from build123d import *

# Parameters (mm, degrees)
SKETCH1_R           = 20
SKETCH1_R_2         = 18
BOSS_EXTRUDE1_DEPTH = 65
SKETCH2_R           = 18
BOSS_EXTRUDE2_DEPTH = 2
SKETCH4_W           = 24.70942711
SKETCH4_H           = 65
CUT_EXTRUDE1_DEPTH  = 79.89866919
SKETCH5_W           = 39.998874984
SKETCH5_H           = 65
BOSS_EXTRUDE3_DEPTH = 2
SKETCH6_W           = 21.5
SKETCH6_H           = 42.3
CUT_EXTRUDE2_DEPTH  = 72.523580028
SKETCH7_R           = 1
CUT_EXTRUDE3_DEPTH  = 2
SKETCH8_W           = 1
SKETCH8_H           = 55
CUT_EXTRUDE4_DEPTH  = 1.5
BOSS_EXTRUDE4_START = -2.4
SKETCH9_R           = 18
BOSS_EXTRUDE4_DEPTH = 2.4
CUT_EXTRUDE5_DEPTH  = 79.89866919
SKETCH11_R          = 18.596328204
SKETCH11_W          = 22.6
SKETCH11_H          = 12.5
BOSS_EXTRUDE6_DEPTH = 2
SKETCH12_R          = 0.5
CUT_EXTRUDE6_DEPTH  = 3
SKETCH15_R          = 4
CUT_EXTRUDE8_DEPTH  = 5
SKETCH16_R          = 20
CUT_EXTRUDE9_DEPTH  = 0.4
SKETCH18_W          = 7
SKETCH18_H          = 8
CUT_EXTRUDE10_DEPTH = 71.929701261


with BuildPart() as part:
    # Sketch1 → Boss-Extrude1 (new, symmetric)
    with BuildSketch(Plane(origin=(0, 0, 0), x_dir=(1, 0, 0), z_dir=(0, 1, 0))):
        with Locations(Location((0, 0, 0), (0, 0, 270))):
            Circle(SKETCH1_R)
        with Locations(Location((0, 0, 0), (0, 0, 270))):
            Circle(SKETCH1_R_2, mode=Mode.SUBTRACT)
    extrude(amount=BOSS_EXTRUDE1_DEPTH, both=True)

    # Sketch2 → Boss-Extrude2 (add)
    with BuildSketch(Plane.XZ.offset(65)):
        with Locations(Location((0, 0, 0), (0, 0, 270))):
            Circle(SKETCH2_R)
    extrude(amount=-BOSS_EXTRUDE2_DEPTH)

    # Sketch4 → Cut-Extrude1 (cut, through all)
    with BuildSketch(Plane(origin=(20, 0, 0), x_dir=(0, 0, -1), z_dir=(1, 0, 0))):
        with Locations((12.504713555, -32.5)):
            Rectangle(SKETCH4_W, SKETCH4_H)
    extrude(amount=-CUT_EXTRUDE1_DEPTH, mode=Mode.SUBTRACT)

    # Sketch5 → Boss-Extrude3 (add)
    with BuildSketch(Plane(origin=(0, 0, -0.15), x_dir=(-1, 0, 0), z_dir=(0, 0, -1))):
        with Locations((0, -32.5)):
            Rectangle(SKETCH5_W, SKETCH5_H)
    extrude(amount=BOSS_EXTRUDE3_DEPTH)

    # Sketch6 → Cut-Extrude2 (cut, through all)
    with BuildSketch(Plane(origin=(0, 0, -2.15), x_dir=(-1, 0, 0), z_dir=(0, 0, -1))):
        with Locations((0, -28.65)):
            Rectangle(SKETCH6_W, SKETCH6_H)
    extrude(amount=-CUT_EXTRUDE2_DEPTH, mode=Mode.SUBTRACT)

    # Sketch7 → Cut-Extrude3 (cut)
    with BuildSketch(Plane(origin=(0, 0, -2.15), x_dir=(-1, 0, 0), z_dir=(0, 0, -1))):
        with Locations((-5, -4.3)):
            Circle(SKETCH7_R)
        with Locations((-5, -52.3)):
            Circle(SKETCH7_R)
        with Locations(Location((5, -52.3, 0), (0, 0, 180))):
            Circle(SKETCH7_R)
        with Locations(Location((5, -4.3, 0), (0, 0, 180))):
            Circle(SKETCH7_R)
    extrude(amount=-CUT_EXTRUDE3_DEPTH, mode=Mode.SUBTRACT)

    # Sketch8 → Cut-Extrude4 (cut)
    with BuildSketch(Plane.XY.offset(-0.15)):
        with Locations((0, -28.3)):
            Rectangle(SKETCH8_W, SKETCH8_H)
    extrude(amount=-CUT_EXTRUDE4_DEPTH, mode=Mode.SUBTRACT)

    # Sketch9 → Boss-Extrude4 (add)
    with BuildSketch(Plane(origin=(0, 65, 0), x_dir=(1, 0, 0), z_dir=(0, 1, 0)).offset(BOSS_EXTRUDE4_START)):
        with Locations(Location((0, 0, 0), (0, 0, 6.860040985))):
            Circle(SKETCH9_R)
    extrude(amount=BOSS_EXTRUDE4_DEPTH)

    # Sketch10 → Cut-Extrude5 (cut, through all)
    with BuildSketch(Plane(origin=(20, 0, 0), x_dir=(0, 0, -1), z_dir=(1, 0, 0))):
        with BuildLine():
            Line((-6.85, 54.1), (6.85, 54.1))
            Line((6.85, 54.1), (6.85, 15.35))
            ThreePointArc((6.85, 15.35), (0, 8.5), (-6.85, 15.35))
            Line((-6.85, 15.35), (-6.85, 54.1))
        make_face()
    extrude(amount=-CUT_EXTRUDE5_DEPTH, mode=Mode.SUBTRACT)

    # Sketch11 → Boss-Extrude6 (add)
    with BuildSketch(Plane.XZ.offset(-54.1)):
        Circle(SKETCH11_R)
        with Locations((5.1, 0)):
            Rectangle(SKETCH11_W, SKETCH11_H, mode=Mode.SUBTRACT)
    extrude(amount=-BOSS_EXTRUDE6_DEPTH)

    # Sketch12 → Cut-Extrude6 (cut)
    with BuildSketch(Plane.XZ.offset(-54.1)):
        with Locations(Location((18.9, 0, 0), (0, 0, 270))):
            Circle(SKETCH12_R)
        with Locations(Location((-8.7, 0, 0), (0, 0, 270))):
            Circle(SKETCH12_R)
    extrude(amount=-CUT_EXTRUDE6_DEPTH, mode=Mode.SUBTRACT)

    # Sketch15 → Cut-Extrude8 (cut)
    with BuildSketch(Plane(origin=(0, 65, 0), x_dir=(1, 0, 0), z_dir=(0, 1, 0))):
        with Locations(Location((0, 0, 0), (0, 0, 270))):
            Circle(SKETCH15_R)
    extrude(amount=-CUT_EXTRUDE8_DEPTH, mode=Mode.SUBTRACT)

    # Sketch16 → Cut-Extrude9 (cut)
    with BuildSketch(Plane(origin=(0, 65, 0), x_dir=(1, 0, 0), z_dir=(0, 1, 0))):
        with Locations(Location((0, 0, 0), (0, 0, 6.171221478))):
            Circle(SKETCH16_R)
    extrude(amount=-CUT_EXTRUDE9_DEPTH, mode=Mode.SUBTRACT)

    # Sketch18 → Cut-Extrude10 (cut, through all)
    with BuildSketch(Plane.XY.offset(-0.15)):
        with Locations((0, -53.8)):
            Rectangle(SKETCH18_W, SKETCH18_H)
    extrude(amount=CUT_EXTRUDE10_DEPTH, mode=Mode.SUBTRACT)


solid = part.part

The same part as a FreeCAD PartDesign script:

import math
import FreeCAD as App
import Part
import Sketcher
from FreeCAD import Vector
Q = App.Units.Quantity

doc = App.newDocument("Part")
body = doc.addObject("PartDesign::Body", "Body")

# Sketch on XZ plane
sketch1 = body.newObject("Sketcher::SketchObject", "Sketch")
sketch1.AttachmentSupport = (doc.getObject("XZ_Plane"), [""])
sketch1.MapMode = "FlatFace"
sketch1.addGeometry([
    Part.Circle(Vector(0, 0, 0), Vector(0, 0, 1), 20),
    Part.Circle(Vector(0, 0, 0), Vector(0, 0, 1), 18),
], False)
sketch1.addConstraint([
    Sketcher.Constraint("Coincident", 0, 3, -1, 1),
    Sketcher.Constraint("Coincident", 1, 3, -1, 1),
    Sketcher.Constraint("Diameter", 0, Q("40 mm")),
    Sketcher.Constraint("Diameter", 1, Q("36 mm")),
])
pad1 = body.newObject("PartDesign::Pad", "Pad")
pad1.Profile = sketch1
pad1.Length = 130
pad1.Midplane = True

# Sketch on XZ plane
sketch2 = body.newObject("Sketcher::SketchObject", "Sketch001")
sketch2.AttachmentSupport = (doc.getObject("XZ_Plane"), [""])
sketch2.MapMode = "FlatFace"
sketch2.AttachmentOffset = App.Placement(Vector(0, 0, 65), App.Rotation())
sketch2.addGeometry(Part.Circle(Vector(0, 0, 0), Vector(0, 0, 1), 18), False)
sketch2.addConstraint([
    Sketcher.Constraint("Coincident", 0, 3, -1, 1),
    Sketcher.Constraint("Diameter", 0, Q("36 mm")),
])
pad2 = body.newObject("PartDesign::Pad", "Pad001")
pad2.Profile = sketch2
pad2.Length = 2
pad2.Reversed = True

# Sketch on YZ plane
sketch3 = body.newObject("Sketcher::SketchObject", "Sketch002")
sketch3.AttachmentSupport = (doc.getObject("YZ_Plane"), [""])
sketch3.MapMode = "FlatFace"
sketch3.AttachmentOffset = App.Placement(Vector(0, 0, 20), App.Rotation())
sketch3.addGeometry([
    Part.LineSegment(Vector(0, -0.15, 0), Vector(-65, -0.15, 0)),
    Part.LineSegment(Vector(-65, -0.15, 0), Vector(-65, -24.859427, 0)),
    Part.LineSegment(Vector(-65, -24.859427, 0), Vector(0, -24.859427, 0)),
    Part.LineSegment(Vector(0, -24.859427, 0), Vector(0, -0.15, 0)),
], False)
sketch3.addConstraint([
    Sketcher.Constraint("Coincident", 0, 2, 1, 1),
    Sketcher.Constraint("Coincident", 1, 2, 2, 1),
    Sketcher.Constraint("Coincident", 2, 2, 3, 1),
    Sketcher.Constraint("Coincident", 3, 2, 0, 1),
    Sketcher.Constraint("Horizontal", 0),
    Sketcher.Constraint("Vertical", 1),
    Sketcher.Constraint("Horizontal", 2),
    Sketcher.Constraint("Vertical", 3),
    Sketcher.Constraint("PointOnObject", 2, 2, -2),
    Sketcher.Constraint("DistanceX", 0, 2, 0, 1, Q("65 mm")),
    Sketcher.Constraint("DistanceY", 0, 2, -1, 1, Q("0.15 mm")),
    Sketcher.Constraint("DistanceY", 1, 2, 1, 1, Q("24.709427 mm")),
])
pocket1 = body.newObject("PartDesign::Pocket", "Pocket")
pocket1.Profile = sketch3
pocket1.Type = "ThroughAll"

# Sketch on XY plane
sketch4 = body.newObject("Sketcher::SketchObject", "Sketch003")
sketch4.AttachmentSupport = (doc.getObject("XY_Plane"), [""])
sketch4.MapMode = "FlatFace"
sketch4.AttachmentOffset = App.Placement(Vector(0, 0, -0.15), App.Rotation())
sketch4.addGeometry([
    Part.LineSegment(Vector(19.999437, 0, 0), Vector(19.999437, -65, 0)),
    Part.LineSegment(Vector(19.999437, -65, 0), Vector(-19.999437, -65, 0)),
    Part.LineSegment(Vector(-19.999437, -65, 0), Vector(-19.999437, 0, 0)),
    Part.LineSegment(Vector(-19.999437, 0, 0), Vector(19.999437, 0, 0)),
], False)
sketch4.addConstraint([
    Sketcher.Constraint("Coincident", 0, 2, 1, 1),
    Sketcher.Constraint("Coincident", 1, 2, 2, 1),
    Sketcher.Constraint("Coincident", 2, 2, 3, 1),
    Sketcher.Constraint("Coincident", 3, 2, 0, 1),
    Sketcher.Constraint("Vertical", 0),
    Sketcher.Constraint("Horizontal", 1),
    Sketcher.Constraint("Vertical", 2),
    Sketcher.Constraint("Horizontal", 3),
    Sketcher.Constraint("Symmetric", 2, 2, 3, 2, -1, 1),
    Sketcher.Constraint("DistanceY", 0, 2, 0, 1, Q("65 mm")),
    Sketcher.Constraint("DistanceX", 1, 2, 1, 1, Q("39.998875 mm")),
])
pad3 = body.newObject("PartDesign::Pad", "Pad002")
pad3.Profile = sketch4
pad3.Length = 2
pad3.Reversed = True

# Sketch on XY plane
sketch5 = body.newObject("Sketcher::SketchObject", "Sketch004")
sketch5.AttachmentSupport = (doc.getObject("XY_Plane"), [""])
sketch5.MapMode = "FlatFace"
sketch5.AttachmentOffset = App.Placement(Vector(0, 0, -2.15), App.Rotation())
sketch5.addGeometry([
    Part.LineSegment(Vector(10.75, -7.5, 0), Vector(10.75, -49.8, 0)),
    Part.LineSegment(Vector(10.75, -49.8, 0), Vector(-10.75, -49.8, 0)),
    Part.LineSegment(Vector(-10.75, -49.8, 0), Vector(-10.75, -7.5, 0)),
    Part.LineSegment(Vector(-10.75, -7.5, 0), Vector(10.75, -7.5, 0)),
], False)
sketch5.addConstraint([
    Sketcher.Constraint("Coincident", 0, 2, 1, 1),
    Sketcher.Constraint("Coincident", 1, 2, 2, 1),
    Sketcher.Constraint("Coincident", 2, 2, 3, 1),
    Sketcher.Constraint("Coincident", 3, 2, 0, 1),
    Sketcher.Constraint("Vertical", 0),
    Sketcher.Constraint("Horizontal", 1),
    Sketcher.Constraint("Vertical", 2),
    Sketcher.Constraint("Horizontal", 3),
    Sketcher.Constraint("DistanceX", 1, 2, 1, 1, Q("21.5 mm")),
    Sketcher.Constraint("DistanceY", 0, 2, 0, 1, Q("42.3 mm")),
    Sketcher.Constraint("DistanceY", 0, 2, -1, 1, Q("49.8 mm")),
    Sketcher.Constraint("DistanceX", -1, 1, 0, 2, Q("10.75 mm")),
])
pocket2 = body.newObject("PartDesign::Pocket", "Pocket001")
pocket2.Profile = sketch5
pocket2.Type = "ThroughAll"
pocket2.Reversed = True

# Sketch on XY plane
sketch6 = body.newObject("Sketcher::SketchObject", "Sketch005")
sketch6.AttachmentSupport = (doc.getObject("XY_Plane"), [""])
sketch6.MapMode = "FlatFace"
sketch6.AttachmentOffset = App.Placement(Vector(0, 0, -2.15), App.Rotation())
sketch6.addGeometry([
    Part.Circle(Vector(5, -4.3, 0), Vector(0, 0, 1), 1),
    Part.Circle(Vector(5, -52.3, 0), Vector(0, 0, 1), 1),
    Part.Circle(Vector(-5, -52.3, 0), Vector(0, 0, 1), 1),
    Part.Circle(Vector(-5, -4.3, 0), Vector(0, 0, 1), 1),
], False)
sketch6.addConstraint([
    Sketcher.Constraint("Equal", 0, 1),
    Sketcher.Constraint("Equal", 1, 2),
    Sketcher.Constraint("Equal", 2, 3),
    Sketcher.Constraint("Symmetric", 1, 3, 2, 3, -2),
    Sketcher.Constraint("Symmetric", 0, 3, 3, 3, -2),
    Sketcher.Constraint("Vertical", 0, 3, 1, 3),
    Sketcher.Constraint("Diameter", 0, Q("2 mm")),
    Sketcher.Constraint("DistanceX", -1, 1, 0, 3, Q("5 mm")),
    Sketcher.Constraint("DistanceY", 1, 3, 0, 3, Q("48 mm")),
    Sketcher.Constraint("DistanceY", 0, 3, -1, 1, Q("4.3 mm")),
])
pocket3 = body.newObject("PartDesign::Pocket", "Pocket002")
pocket3.Profile = sketch6
pocket3.Length = 2
pocket3.Reversed = True

# Sketch on XY plane
sketch7 = body.newObject("Sketcher::SketchObject", "Sketch006")
sketch7.AttachmentSupport = (doc.getObject("XY_Plane"), [""])
sketch7.MapMode = "FlatFace"
sketch7.AttachmentOffset = App.Placement(Vector(0, 0, -0.15), App.Rotation())
sketch7.addGeometry([
    Part.LineSegment(Vector(-0.5, -0.8, 0), Vector(-0.5, -55.8, 0)),
    Part.LineSegment(Vector(-0.5, -55.8, 0), Vector(0.5, -55.8, 0)),
    Part.LineSegment(Vector(0.5, -55.8, 0), Vector(0.5, -0.8, 0)),
    Part.LineSegment(Vector(0.5, -0.8, 0), Vector(-0.5, -0.8, 0)),
], False)
sketch7.addConstraint([
    Sketcher.Constraint("Coincident", 0, 2, 1, 1),
    Sketcher.Constraint("Coincident", 1, 2, 2, 1),
    Sketcher.Constraint("Coincident", 2, 2, 3, 1),
    Sketcher.Constraint("Coincident", 3, 2, 0, 1),
    Sketcher.Constraint("Vertical", 0),
    Sketcher.Constraint("Horizontal", 1),
    Sketcher.Constraint("Vertical", 2),
    Sketcher.Constraint("Horizontal", 3),
    Sketcher.Constraint("DistanceX", 1, 1, 1, 2, Q("1 mm")),
    Sketcher.Constraint("DistanceY", 0, 2, 0, 1, Q("55 mm")),
    Sketcher.Constraint("DistanceX", 0, 2, -1, 1, Q("0.5 mm")),
    Sketcher.Constraint("DistanceY", 0, 2, -1, 1, Q("55.8 mm")),
])
pocket4 = body.newObject("PartDesign::Pocket", "Pocket003")
pocket4.Profile = sketch7
pocket4.Length = 1.5

# Sketch on XZ plane
sketch8 = body.newObject("Sketcher::SketchObject", "Sketch007")
sketch8.AttachmentSupport = (doc.getObject("XZ_Plane"), [""])
sketch8.MapMode = "FlatFace"
sketch8.AttachmentOffset = App.Placement(Vector(0, 0, -62.6), App.Rotation())
sketch8.addGeometry(Part.Circle(Vector(0, 0, 0), Vector(0, 0, 1), 18), False)
sketch8.addConstraint([
    Sketcher.Constraint("Coincident", 0, 3, -1, 1),
    Sketcher.Constraint("Diameter", 0, Q("36 mm")),
])
pad4 = body.newObject("PartDesign::Pad", "Pad003")
pad4.Profile = sketch8
pad4.Length = 2.4
pad4.Reversed = True

# Sketch on YZ plane
sketch9 = body.newObject("Sketcher::SketchObject", "Sketch008")
sketch9.AttachmentSupport = (doc.getObject("YZ_Plane"), [""])
sketch9.MapMode = "FlatFace"
sketch9.AttachmentOffset = App.Placement(Vector(0, 0, 20), App.Rotation())
sketch9.addGeometry([
    Part.LineSegment(Vector(54.1, -6.85, 0), Vector(54.1, 6.85, 0)),
    Part.LineSegment(Vector(54.1, 6.85, 0), Vector(15.35, 6.85, 0)),
    Part.ArcOfCircle(Part.Circle(Vector(15.35, 0, 0), Vector(0, 0, 1), 6.85), math.radians(90), math.radians(270)),
    Part.LineSegment(Vector(15.35, -6.85, 0), Vector(54.1, -6.85, 0)),
], False)
sketch9.addConstraint([
    Sketcher.Constraint("Coincident", 0, 2, 1, 1),
    Sketcher.Constraint("Tangent", 1, 2, 2, 1),
    Sketcher.Constraint("Tangent", 2, 2, 3, 1),
    Sketcher.Constraint("Coincident", 3, 2, 0, 1),
    Sketcher.Constraint("Vertical", 0),
    Sketcher.Constraint("Horizontal", 1),
    Sketcher.Constraint("Horizontal", 3),
    Sketcher.Constraint("PointOnObject", 2, 3, -1),
    Sketcher.Constraint("Radius", 2, Q("6.85 mm")),
    Sketcher.Constraint("DistanceX", 1, 2, 1, 1, Q("38.75 mm")),
    Sketcher.Constraint("DistanceX", -1, 1, 0, 2, Q("54.1 mm")),
])
pocket5 = body.newObject("PartDesign::Pocket", "Pocket004")
pocket5.Profile = sketch9
pocket5.Type = "ThroughAll"

# Sketch on XZ plane
sketch10 = body.newObject("Sketcher::SketchObject", "Sketch009")
sketch10.AttachmentSupport = (doc.getObject("XZ_Plane"), [""])
sketch10.MapMode = "FlatFace"
sketch10.AttachmentOffset = App.Placement(Vector(0, 0, -54.1), App.Rotation())
sketch10.addGeometry([
    Part.Circle(Vector(0, 0, 0), Vector(0, 0, 1), 18.596328),  # 0
    Part.LineSegment(Vector(16.4, -6.25, 0), Vector(-6.2, -6.25, 0)),  # 1
    Part.LineSegment(Vector(-6.2, -6.25, 0), Vector(-6.2, 6.25, 0)),  # 2
    Part.LineSegment(Vector(-6.2, 6.25, 0), Vector(16.4, 6.25, 0)),  # 3
    Part.LineSegment(Vector(16.4, 6.25, 0), Vector(16.4, -6.25, 0)),  # 4
], False)
sketch10.addConstraint([
    Sketcher.Constraint("Coincident", 1, 2, 2, 1),
    Sketcher.Constraint("Coincident", 2, 2, 3, 1),
    Sketcher.Constraint("Coincident", 3, 2, 4, 1),
    Sketcher.Constraint("Coincident", 4, 2, 1, 1),
    Sketcher.Constraint("Horizontal", 1),
    Sketcher.Constraint("Vertical", 2),
    Sketcher.Constraint("Horizontal", 3),
    Sketcher.Constraint("Vertical", 4),
    Sketcher.Constraint("Coincident", 0, 3, -1, 1),
    Sketcher.Constraint("DistanceX", 1, 2, 1, 1, Q("22.6 mm")),
    Sketcher.Constraint("DistanceY", 2, 1, 2, 2, Q("12.5 mm")),
    Sketcher.Constraint("DistanceX", 1, 2, -1, 1, Q("6.2 mm")),
    Sketcher.Constraint("DistanceY", 1, 2, -1, 1, Q("6.25 mm")),
    Sketcher.Constraint("Diameter", 0, Q("37.192656 mm")),
])
pad5 = body.newObject("PartDesign::Pad", "Pad004")
pad5.Profile = sketch10
pad5.Length = 2
pad5.Reversed = True

# Sketch on XZ plane
sketch11 = body.newObject("Sketcher::SketchObject", "Sketch010")
sketch11.AttachmentSupport = (doc.getObject("XZ_Plane"), [""])
sketch11.MapMode = "FlatFace"
sketch11.AttachmentOffset = App.Placement(Vector(0, 0, -54.1), App.Rotation())
sketch11.addGeometry([
    Part.Circle(Vector(18.9, 0, 0), Vector(0, 0, 1), 0.5),
    Part.Circle(Vector(-8.7, 0, 0), Vector(0, 0, 1), 0.5),
], False)
sketch11.addConstraint([
    Sketcher.Constraint("Equal", 0, 1),
    Sketcher.Constraint("PointOnObject", 0, 3, -1),
    Sketcher.Constraint("PointOnObject", 1, 3, -1),
    Sketcher.Constraint("Diameter", 0, Q("1 mm")),
    Sketcher.Constraint("DistanceX", -1, 1, 0, 3, Q("18.9 mm")),
    Sketcher.Constraint("DistanceX", 1, 3, -1, 1, Q("8.7 mm")),
])
pocket6 = body.newObject("PartDesign::Pocket", "Pocket005")
pocket6.Profile = sketch11
pocket6.Length = 3

# Sketch on XZ plane
sketch12 = body.newObject("Sketcher::SketchObject", "Sketch011")
sketch12.AttachmentSupport = (doc.getObject("XZ_Plane"), [""])
sketch12.MapMode = "FlatFace"
sketch12.AttachmentOffset = App.Placement(Vector(0, 0, -65), App.Rotation())
sketch12.addGeometry(Part.Circle(Vector(0, 0, 0), Vector(0, 0, 1), 4), False)
sketch12.addConstraint([
    Sketcher.Constraint("Coincident", 0, 3, -1, 1),
    Sketcher.Constraint("Diameter", 0, Q("8 mm")),
])
pocket7 = body.newObject("PartDesign::Pocket", "Pocket006")
pocket7.Profile = sketch12
pocket7.Length = 5
pocket7.Reversed = True

# Sketch on XZ plane
sketch13 = body.newObject("Sketcher::SketchObject", "Sketch012")
sketch13.AttachmentSupport = (doc.getObject("XZ_Plane"), [""])
sketch13.MapMode = "FlatFace"
sketch13.AttachmentOffset = App.Placement(Vector(0, 0, -65), App.Rotation())
sketch13.addGeometry(Part.Circle(Vector(0, 0, 0), Vector(0, 0, 1), 20), False)
sketch13.addConstraint([
    Sketcher.Constraint("Coincident", 0, 3, -1, 1),
    Sketcher.Constraint("Diameter", 0, Q("40 mm")),
])
pocket8 = body.newObject("PartDesign::Pocket", "Pocket007")
pocket8.Profile = sketch13
pocket8.Length = 0.4
pocket8.Reversed = True

# Sketch on XY plane
sketch14 = body.newObject("Sketcher::SketchObject", "Sketch013")
sketch14.AttachmentSupport = (doc.getObject("XY_Plane"), [""])
sketch14.MapMode = "FlatFace"
sketch14.AttachmentOffset = App.Placement(Vector(0, 0, -0.15), App.Rotation())
sketch14.addGeometry([
    Part.LineSegment(Vector(-3.5, -49.8, 0), Vector(-3.5, -57.8, 0)),
    Part.LineSegment(Vector(-3.5, -57.8, 0), Vector(3.5, -57.8, 0)),
    Part.LineSegment(Vector(3.5, -57.8, 0), Vector(3.5, -49.8, 0)),
    Part.LineSegment(Vector(3.5, -49.8, 0), Vector(-3.5, -49.8, 0)),
], False)
sketch14.addConstraint([
    Sketcher.Constraint("Coincident", 0, 2, 1, 1),
    Sketcher.Constraint("Coincident", 1, 2, 2, 1),
    Sketcher.Constraint("Coincident", 2, 2, 3, 1),
    Sketcher.Constraint("Coincident", 3, 2, 0, 1),
    Sketcher.Constraint("Vertical", 0),
    Sketcher.Constraint("Horizontal", 1),
    Sketcher.Constraint("Vertical", 2),
    Sketcher.Constraint("Horizontal", 3),
    Sketcher.Constraint("DistanceX", 1, 1, 1, 2, Q("7 mm")),
    Sketcher.Constraint("DistanceY", 0, 2, 0, 1, Q("8 mm")),
    Sketcher.Constraint("DistanceX", 0, 2, -1, 1, Q("3.5 mm")),
    Sketcher.Constraint("DistanceY", 0, 2, -1, 1, Q("57.8 mm")),
])
pocket9 = body.newObject("PartDesign::Pocket", "Pocket008")
pocket9.Profile = sketch14
pocket9.Type = "ThroughAll"
pocket9.Reversed = True

doc.recompute()
